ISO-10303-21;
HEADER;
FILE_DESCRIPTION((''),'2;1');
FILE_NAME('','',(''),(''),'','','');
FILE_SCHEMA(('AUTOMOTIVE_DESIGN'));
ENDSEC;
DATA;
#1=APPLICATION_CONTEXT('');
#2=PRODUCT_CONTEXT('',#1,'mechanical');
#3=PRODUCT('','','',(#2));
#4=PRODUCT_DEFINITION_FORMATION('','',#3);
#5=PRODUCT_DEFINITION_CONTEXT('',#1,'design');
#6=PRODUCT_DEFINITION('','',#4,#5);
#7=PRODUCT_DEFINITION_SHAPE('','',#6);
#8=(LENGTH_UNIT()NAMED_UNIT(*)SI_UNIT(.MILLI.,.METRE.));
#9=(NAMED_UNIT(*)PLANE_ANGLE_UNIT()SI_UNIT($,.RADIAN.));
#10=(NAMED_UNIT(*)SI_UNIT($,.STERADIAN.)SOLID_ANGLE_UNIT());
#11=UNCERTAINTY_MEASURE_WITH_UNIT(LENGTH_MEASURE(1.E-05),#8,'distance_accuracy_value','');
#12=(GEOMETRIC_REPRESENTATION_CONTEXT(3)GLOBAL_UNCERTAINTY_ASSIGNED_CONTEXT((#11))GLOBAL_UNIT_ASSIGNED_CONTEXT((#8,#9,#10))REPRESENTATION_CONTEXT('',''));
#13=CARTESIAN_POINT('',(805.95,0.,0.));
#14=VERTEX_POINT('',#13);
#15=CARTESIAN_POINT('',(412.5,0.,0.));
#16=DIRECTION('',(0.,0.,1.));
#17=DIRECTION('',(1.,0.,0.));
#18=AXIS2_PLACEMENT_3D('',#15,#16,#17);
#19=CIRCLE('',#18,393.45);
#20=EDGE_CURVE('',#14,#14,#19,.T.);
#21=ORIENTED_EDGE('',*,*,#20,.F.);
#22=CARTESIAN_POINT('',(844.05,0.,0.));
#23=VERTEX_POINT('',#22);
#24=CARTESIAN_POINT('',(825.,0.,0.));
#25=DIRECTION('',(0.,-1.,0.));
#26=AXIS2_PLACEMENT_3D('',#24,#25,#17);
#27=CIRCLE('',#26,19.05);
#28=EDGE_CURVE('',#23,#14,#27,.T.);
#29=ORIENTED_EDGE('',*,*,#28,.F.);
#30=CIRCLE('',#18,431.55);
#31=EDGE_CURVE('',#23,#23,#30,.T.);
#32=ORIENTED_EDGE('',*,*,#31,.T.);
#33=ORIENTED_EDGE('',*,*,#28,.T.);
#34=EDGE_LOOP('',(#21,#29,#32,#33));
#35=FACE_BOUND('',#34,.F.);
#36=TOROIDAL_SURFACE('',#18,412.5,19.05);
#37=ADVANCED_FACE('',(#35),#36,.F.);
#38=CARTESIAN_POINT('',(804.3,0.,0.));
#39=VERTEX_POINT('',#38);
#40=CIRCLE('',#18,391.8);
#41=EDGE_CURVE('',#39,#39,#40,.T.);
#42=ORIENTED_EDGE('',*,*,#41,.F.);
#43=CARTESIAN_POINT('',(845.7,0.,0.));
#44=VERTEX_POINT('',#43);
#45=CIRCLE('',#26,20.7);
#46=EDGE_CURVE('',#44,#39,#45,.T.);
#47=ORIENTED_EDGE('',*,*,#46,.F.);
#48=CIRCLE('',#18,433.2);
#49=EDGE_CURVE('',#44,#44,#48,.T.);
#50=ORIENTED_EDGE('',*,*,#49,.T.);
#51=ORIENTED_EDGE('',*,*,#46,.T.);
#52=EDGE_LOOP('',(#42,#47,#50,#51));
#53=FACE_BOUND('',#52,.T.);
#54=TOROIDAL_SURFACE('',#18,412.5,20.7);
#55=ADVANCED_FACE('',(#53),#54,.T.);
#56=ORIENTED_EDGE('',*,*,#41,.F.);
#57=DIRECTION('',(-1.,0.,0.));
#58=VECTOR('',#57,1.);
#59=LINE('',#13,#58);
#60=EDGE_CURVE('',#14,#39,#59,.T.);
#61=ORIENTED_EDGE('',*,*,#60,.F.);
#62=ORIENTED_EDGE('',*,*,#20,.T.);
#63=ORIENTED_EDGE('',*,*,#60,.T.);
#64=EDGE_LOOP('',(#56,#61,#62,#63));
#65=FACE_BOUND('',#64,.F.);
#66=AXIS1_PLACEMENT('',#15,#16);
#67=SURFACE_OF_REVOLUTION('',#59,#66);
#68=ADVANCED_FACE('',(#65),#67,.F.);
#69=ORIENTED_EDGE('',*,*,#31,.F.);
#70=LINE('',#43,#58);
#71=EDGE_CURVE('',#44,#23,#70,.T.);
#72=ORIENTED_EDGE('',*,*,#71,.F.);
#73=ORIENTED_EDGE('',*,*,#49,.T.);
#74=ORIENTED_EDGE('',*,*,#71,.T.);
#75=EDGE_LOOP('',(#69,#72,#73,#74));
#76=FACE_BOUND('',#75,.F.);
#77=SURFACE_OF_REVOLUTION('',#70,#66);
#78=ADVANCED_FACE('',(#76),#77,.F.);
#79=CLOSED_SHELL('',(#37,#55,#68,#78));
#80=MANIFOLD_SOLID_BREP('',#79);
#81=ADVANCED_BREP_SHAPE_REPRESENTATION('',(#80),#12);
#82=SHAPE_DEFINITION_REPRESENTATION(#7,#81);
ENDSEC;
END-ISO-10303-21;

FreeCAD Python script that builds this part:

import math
import FreeCAD as App
import Part
import Sketcher

doc = App.newDocument("Part")
body = doc.addObject("PartDesign::Body", "Body")

# Sketch on XZ plane
sketch1 = body.newObject("Sketcher::SketchObject", "Sketch")
sketch1.AttachmentSupport = (doc.getObject("XZ_Plane"), [""])
sketch1.MapMode = "FlatFace"
sketch1.addGeometry([
    Part.ArcOfCircle(Part.Circle(App.Vector(0, 0, 0), App.Vector(0, 0, 1), 19.1), math.radians(0), math.radians(180)),
    Part.LineSegment(App.Vector(19.1, 0, 0), App.Vector(20.7, 0, 0)),
    Part.ArcOfCircle(Part.Circle(App.Vector(0, 0, 0), App.Vector(0, 0, 1), 20.7), math.radians(0), math.radians(180)),
    Part.LineSegment(App.Vector(-20.7, 0, 0), App.Vector(-19.1, 0, 0)),
], False)
sketch1.addConstraint([
    Sketcher.Constraint("Coincident", 0, 1, 1, 1),
    Sketcher.Constraint("Coincident", 1, 2, 2, 1),
    Sketcher.Constraint("Coincident", 2, 2, 3, 1),
    Sketcher.Constraint("Coincident", 3, 2, 0, 2),
    Sketcher.Constraint("Horizontal", 1),
    Sketcher.Constraint("Horizontal", 3),
    Sketcher.Constraint("Coincident", 0, 3, -1, 1),
    Sketcher.Constraint("Coincident", 2, 3, -1, 1),
    Sketcher.Constraint("PointOnObject", 0, 1, -1),
    Sketcher.Constraint("PointOnObject", 2, 2, -1),
    Sketcher.Constraint("Radius", 2, 20.7),
    Sketcher.Constraint("Radius", 0, 19.05),
])

# Sketch on XY plane
sketch2 = body.newObject("Sketcher::SketchObject", "Sketch001")
sketch2.AttachmentSupport = (doc.getObject("XY_Plane"), [""])
sketch2.MapMode = "FlatFace"
sketch2.addGeometry(Part.Circle(App.Vector(412, 0, 0), App.Vector(0, 0, 1), 412), False)
sketch2.addConstraint([
    Sketcher.Constraint("PointOnObject", 0, 3, -1),
    Sketcher.Constraint("Diameter", 0, 825.0),
    Sketcher.Constraint("DistanceX", -1, 1, 0, 3, 412.5),
])
doc.recompute()

additivepipe = body.newObject("PartDesign::AdditivePipe", "AdditivePipe")
additivepipe.Profile = sketch1
additivepipe.Spine = (sketch2, ["Edge1"])

doc.recompute()
